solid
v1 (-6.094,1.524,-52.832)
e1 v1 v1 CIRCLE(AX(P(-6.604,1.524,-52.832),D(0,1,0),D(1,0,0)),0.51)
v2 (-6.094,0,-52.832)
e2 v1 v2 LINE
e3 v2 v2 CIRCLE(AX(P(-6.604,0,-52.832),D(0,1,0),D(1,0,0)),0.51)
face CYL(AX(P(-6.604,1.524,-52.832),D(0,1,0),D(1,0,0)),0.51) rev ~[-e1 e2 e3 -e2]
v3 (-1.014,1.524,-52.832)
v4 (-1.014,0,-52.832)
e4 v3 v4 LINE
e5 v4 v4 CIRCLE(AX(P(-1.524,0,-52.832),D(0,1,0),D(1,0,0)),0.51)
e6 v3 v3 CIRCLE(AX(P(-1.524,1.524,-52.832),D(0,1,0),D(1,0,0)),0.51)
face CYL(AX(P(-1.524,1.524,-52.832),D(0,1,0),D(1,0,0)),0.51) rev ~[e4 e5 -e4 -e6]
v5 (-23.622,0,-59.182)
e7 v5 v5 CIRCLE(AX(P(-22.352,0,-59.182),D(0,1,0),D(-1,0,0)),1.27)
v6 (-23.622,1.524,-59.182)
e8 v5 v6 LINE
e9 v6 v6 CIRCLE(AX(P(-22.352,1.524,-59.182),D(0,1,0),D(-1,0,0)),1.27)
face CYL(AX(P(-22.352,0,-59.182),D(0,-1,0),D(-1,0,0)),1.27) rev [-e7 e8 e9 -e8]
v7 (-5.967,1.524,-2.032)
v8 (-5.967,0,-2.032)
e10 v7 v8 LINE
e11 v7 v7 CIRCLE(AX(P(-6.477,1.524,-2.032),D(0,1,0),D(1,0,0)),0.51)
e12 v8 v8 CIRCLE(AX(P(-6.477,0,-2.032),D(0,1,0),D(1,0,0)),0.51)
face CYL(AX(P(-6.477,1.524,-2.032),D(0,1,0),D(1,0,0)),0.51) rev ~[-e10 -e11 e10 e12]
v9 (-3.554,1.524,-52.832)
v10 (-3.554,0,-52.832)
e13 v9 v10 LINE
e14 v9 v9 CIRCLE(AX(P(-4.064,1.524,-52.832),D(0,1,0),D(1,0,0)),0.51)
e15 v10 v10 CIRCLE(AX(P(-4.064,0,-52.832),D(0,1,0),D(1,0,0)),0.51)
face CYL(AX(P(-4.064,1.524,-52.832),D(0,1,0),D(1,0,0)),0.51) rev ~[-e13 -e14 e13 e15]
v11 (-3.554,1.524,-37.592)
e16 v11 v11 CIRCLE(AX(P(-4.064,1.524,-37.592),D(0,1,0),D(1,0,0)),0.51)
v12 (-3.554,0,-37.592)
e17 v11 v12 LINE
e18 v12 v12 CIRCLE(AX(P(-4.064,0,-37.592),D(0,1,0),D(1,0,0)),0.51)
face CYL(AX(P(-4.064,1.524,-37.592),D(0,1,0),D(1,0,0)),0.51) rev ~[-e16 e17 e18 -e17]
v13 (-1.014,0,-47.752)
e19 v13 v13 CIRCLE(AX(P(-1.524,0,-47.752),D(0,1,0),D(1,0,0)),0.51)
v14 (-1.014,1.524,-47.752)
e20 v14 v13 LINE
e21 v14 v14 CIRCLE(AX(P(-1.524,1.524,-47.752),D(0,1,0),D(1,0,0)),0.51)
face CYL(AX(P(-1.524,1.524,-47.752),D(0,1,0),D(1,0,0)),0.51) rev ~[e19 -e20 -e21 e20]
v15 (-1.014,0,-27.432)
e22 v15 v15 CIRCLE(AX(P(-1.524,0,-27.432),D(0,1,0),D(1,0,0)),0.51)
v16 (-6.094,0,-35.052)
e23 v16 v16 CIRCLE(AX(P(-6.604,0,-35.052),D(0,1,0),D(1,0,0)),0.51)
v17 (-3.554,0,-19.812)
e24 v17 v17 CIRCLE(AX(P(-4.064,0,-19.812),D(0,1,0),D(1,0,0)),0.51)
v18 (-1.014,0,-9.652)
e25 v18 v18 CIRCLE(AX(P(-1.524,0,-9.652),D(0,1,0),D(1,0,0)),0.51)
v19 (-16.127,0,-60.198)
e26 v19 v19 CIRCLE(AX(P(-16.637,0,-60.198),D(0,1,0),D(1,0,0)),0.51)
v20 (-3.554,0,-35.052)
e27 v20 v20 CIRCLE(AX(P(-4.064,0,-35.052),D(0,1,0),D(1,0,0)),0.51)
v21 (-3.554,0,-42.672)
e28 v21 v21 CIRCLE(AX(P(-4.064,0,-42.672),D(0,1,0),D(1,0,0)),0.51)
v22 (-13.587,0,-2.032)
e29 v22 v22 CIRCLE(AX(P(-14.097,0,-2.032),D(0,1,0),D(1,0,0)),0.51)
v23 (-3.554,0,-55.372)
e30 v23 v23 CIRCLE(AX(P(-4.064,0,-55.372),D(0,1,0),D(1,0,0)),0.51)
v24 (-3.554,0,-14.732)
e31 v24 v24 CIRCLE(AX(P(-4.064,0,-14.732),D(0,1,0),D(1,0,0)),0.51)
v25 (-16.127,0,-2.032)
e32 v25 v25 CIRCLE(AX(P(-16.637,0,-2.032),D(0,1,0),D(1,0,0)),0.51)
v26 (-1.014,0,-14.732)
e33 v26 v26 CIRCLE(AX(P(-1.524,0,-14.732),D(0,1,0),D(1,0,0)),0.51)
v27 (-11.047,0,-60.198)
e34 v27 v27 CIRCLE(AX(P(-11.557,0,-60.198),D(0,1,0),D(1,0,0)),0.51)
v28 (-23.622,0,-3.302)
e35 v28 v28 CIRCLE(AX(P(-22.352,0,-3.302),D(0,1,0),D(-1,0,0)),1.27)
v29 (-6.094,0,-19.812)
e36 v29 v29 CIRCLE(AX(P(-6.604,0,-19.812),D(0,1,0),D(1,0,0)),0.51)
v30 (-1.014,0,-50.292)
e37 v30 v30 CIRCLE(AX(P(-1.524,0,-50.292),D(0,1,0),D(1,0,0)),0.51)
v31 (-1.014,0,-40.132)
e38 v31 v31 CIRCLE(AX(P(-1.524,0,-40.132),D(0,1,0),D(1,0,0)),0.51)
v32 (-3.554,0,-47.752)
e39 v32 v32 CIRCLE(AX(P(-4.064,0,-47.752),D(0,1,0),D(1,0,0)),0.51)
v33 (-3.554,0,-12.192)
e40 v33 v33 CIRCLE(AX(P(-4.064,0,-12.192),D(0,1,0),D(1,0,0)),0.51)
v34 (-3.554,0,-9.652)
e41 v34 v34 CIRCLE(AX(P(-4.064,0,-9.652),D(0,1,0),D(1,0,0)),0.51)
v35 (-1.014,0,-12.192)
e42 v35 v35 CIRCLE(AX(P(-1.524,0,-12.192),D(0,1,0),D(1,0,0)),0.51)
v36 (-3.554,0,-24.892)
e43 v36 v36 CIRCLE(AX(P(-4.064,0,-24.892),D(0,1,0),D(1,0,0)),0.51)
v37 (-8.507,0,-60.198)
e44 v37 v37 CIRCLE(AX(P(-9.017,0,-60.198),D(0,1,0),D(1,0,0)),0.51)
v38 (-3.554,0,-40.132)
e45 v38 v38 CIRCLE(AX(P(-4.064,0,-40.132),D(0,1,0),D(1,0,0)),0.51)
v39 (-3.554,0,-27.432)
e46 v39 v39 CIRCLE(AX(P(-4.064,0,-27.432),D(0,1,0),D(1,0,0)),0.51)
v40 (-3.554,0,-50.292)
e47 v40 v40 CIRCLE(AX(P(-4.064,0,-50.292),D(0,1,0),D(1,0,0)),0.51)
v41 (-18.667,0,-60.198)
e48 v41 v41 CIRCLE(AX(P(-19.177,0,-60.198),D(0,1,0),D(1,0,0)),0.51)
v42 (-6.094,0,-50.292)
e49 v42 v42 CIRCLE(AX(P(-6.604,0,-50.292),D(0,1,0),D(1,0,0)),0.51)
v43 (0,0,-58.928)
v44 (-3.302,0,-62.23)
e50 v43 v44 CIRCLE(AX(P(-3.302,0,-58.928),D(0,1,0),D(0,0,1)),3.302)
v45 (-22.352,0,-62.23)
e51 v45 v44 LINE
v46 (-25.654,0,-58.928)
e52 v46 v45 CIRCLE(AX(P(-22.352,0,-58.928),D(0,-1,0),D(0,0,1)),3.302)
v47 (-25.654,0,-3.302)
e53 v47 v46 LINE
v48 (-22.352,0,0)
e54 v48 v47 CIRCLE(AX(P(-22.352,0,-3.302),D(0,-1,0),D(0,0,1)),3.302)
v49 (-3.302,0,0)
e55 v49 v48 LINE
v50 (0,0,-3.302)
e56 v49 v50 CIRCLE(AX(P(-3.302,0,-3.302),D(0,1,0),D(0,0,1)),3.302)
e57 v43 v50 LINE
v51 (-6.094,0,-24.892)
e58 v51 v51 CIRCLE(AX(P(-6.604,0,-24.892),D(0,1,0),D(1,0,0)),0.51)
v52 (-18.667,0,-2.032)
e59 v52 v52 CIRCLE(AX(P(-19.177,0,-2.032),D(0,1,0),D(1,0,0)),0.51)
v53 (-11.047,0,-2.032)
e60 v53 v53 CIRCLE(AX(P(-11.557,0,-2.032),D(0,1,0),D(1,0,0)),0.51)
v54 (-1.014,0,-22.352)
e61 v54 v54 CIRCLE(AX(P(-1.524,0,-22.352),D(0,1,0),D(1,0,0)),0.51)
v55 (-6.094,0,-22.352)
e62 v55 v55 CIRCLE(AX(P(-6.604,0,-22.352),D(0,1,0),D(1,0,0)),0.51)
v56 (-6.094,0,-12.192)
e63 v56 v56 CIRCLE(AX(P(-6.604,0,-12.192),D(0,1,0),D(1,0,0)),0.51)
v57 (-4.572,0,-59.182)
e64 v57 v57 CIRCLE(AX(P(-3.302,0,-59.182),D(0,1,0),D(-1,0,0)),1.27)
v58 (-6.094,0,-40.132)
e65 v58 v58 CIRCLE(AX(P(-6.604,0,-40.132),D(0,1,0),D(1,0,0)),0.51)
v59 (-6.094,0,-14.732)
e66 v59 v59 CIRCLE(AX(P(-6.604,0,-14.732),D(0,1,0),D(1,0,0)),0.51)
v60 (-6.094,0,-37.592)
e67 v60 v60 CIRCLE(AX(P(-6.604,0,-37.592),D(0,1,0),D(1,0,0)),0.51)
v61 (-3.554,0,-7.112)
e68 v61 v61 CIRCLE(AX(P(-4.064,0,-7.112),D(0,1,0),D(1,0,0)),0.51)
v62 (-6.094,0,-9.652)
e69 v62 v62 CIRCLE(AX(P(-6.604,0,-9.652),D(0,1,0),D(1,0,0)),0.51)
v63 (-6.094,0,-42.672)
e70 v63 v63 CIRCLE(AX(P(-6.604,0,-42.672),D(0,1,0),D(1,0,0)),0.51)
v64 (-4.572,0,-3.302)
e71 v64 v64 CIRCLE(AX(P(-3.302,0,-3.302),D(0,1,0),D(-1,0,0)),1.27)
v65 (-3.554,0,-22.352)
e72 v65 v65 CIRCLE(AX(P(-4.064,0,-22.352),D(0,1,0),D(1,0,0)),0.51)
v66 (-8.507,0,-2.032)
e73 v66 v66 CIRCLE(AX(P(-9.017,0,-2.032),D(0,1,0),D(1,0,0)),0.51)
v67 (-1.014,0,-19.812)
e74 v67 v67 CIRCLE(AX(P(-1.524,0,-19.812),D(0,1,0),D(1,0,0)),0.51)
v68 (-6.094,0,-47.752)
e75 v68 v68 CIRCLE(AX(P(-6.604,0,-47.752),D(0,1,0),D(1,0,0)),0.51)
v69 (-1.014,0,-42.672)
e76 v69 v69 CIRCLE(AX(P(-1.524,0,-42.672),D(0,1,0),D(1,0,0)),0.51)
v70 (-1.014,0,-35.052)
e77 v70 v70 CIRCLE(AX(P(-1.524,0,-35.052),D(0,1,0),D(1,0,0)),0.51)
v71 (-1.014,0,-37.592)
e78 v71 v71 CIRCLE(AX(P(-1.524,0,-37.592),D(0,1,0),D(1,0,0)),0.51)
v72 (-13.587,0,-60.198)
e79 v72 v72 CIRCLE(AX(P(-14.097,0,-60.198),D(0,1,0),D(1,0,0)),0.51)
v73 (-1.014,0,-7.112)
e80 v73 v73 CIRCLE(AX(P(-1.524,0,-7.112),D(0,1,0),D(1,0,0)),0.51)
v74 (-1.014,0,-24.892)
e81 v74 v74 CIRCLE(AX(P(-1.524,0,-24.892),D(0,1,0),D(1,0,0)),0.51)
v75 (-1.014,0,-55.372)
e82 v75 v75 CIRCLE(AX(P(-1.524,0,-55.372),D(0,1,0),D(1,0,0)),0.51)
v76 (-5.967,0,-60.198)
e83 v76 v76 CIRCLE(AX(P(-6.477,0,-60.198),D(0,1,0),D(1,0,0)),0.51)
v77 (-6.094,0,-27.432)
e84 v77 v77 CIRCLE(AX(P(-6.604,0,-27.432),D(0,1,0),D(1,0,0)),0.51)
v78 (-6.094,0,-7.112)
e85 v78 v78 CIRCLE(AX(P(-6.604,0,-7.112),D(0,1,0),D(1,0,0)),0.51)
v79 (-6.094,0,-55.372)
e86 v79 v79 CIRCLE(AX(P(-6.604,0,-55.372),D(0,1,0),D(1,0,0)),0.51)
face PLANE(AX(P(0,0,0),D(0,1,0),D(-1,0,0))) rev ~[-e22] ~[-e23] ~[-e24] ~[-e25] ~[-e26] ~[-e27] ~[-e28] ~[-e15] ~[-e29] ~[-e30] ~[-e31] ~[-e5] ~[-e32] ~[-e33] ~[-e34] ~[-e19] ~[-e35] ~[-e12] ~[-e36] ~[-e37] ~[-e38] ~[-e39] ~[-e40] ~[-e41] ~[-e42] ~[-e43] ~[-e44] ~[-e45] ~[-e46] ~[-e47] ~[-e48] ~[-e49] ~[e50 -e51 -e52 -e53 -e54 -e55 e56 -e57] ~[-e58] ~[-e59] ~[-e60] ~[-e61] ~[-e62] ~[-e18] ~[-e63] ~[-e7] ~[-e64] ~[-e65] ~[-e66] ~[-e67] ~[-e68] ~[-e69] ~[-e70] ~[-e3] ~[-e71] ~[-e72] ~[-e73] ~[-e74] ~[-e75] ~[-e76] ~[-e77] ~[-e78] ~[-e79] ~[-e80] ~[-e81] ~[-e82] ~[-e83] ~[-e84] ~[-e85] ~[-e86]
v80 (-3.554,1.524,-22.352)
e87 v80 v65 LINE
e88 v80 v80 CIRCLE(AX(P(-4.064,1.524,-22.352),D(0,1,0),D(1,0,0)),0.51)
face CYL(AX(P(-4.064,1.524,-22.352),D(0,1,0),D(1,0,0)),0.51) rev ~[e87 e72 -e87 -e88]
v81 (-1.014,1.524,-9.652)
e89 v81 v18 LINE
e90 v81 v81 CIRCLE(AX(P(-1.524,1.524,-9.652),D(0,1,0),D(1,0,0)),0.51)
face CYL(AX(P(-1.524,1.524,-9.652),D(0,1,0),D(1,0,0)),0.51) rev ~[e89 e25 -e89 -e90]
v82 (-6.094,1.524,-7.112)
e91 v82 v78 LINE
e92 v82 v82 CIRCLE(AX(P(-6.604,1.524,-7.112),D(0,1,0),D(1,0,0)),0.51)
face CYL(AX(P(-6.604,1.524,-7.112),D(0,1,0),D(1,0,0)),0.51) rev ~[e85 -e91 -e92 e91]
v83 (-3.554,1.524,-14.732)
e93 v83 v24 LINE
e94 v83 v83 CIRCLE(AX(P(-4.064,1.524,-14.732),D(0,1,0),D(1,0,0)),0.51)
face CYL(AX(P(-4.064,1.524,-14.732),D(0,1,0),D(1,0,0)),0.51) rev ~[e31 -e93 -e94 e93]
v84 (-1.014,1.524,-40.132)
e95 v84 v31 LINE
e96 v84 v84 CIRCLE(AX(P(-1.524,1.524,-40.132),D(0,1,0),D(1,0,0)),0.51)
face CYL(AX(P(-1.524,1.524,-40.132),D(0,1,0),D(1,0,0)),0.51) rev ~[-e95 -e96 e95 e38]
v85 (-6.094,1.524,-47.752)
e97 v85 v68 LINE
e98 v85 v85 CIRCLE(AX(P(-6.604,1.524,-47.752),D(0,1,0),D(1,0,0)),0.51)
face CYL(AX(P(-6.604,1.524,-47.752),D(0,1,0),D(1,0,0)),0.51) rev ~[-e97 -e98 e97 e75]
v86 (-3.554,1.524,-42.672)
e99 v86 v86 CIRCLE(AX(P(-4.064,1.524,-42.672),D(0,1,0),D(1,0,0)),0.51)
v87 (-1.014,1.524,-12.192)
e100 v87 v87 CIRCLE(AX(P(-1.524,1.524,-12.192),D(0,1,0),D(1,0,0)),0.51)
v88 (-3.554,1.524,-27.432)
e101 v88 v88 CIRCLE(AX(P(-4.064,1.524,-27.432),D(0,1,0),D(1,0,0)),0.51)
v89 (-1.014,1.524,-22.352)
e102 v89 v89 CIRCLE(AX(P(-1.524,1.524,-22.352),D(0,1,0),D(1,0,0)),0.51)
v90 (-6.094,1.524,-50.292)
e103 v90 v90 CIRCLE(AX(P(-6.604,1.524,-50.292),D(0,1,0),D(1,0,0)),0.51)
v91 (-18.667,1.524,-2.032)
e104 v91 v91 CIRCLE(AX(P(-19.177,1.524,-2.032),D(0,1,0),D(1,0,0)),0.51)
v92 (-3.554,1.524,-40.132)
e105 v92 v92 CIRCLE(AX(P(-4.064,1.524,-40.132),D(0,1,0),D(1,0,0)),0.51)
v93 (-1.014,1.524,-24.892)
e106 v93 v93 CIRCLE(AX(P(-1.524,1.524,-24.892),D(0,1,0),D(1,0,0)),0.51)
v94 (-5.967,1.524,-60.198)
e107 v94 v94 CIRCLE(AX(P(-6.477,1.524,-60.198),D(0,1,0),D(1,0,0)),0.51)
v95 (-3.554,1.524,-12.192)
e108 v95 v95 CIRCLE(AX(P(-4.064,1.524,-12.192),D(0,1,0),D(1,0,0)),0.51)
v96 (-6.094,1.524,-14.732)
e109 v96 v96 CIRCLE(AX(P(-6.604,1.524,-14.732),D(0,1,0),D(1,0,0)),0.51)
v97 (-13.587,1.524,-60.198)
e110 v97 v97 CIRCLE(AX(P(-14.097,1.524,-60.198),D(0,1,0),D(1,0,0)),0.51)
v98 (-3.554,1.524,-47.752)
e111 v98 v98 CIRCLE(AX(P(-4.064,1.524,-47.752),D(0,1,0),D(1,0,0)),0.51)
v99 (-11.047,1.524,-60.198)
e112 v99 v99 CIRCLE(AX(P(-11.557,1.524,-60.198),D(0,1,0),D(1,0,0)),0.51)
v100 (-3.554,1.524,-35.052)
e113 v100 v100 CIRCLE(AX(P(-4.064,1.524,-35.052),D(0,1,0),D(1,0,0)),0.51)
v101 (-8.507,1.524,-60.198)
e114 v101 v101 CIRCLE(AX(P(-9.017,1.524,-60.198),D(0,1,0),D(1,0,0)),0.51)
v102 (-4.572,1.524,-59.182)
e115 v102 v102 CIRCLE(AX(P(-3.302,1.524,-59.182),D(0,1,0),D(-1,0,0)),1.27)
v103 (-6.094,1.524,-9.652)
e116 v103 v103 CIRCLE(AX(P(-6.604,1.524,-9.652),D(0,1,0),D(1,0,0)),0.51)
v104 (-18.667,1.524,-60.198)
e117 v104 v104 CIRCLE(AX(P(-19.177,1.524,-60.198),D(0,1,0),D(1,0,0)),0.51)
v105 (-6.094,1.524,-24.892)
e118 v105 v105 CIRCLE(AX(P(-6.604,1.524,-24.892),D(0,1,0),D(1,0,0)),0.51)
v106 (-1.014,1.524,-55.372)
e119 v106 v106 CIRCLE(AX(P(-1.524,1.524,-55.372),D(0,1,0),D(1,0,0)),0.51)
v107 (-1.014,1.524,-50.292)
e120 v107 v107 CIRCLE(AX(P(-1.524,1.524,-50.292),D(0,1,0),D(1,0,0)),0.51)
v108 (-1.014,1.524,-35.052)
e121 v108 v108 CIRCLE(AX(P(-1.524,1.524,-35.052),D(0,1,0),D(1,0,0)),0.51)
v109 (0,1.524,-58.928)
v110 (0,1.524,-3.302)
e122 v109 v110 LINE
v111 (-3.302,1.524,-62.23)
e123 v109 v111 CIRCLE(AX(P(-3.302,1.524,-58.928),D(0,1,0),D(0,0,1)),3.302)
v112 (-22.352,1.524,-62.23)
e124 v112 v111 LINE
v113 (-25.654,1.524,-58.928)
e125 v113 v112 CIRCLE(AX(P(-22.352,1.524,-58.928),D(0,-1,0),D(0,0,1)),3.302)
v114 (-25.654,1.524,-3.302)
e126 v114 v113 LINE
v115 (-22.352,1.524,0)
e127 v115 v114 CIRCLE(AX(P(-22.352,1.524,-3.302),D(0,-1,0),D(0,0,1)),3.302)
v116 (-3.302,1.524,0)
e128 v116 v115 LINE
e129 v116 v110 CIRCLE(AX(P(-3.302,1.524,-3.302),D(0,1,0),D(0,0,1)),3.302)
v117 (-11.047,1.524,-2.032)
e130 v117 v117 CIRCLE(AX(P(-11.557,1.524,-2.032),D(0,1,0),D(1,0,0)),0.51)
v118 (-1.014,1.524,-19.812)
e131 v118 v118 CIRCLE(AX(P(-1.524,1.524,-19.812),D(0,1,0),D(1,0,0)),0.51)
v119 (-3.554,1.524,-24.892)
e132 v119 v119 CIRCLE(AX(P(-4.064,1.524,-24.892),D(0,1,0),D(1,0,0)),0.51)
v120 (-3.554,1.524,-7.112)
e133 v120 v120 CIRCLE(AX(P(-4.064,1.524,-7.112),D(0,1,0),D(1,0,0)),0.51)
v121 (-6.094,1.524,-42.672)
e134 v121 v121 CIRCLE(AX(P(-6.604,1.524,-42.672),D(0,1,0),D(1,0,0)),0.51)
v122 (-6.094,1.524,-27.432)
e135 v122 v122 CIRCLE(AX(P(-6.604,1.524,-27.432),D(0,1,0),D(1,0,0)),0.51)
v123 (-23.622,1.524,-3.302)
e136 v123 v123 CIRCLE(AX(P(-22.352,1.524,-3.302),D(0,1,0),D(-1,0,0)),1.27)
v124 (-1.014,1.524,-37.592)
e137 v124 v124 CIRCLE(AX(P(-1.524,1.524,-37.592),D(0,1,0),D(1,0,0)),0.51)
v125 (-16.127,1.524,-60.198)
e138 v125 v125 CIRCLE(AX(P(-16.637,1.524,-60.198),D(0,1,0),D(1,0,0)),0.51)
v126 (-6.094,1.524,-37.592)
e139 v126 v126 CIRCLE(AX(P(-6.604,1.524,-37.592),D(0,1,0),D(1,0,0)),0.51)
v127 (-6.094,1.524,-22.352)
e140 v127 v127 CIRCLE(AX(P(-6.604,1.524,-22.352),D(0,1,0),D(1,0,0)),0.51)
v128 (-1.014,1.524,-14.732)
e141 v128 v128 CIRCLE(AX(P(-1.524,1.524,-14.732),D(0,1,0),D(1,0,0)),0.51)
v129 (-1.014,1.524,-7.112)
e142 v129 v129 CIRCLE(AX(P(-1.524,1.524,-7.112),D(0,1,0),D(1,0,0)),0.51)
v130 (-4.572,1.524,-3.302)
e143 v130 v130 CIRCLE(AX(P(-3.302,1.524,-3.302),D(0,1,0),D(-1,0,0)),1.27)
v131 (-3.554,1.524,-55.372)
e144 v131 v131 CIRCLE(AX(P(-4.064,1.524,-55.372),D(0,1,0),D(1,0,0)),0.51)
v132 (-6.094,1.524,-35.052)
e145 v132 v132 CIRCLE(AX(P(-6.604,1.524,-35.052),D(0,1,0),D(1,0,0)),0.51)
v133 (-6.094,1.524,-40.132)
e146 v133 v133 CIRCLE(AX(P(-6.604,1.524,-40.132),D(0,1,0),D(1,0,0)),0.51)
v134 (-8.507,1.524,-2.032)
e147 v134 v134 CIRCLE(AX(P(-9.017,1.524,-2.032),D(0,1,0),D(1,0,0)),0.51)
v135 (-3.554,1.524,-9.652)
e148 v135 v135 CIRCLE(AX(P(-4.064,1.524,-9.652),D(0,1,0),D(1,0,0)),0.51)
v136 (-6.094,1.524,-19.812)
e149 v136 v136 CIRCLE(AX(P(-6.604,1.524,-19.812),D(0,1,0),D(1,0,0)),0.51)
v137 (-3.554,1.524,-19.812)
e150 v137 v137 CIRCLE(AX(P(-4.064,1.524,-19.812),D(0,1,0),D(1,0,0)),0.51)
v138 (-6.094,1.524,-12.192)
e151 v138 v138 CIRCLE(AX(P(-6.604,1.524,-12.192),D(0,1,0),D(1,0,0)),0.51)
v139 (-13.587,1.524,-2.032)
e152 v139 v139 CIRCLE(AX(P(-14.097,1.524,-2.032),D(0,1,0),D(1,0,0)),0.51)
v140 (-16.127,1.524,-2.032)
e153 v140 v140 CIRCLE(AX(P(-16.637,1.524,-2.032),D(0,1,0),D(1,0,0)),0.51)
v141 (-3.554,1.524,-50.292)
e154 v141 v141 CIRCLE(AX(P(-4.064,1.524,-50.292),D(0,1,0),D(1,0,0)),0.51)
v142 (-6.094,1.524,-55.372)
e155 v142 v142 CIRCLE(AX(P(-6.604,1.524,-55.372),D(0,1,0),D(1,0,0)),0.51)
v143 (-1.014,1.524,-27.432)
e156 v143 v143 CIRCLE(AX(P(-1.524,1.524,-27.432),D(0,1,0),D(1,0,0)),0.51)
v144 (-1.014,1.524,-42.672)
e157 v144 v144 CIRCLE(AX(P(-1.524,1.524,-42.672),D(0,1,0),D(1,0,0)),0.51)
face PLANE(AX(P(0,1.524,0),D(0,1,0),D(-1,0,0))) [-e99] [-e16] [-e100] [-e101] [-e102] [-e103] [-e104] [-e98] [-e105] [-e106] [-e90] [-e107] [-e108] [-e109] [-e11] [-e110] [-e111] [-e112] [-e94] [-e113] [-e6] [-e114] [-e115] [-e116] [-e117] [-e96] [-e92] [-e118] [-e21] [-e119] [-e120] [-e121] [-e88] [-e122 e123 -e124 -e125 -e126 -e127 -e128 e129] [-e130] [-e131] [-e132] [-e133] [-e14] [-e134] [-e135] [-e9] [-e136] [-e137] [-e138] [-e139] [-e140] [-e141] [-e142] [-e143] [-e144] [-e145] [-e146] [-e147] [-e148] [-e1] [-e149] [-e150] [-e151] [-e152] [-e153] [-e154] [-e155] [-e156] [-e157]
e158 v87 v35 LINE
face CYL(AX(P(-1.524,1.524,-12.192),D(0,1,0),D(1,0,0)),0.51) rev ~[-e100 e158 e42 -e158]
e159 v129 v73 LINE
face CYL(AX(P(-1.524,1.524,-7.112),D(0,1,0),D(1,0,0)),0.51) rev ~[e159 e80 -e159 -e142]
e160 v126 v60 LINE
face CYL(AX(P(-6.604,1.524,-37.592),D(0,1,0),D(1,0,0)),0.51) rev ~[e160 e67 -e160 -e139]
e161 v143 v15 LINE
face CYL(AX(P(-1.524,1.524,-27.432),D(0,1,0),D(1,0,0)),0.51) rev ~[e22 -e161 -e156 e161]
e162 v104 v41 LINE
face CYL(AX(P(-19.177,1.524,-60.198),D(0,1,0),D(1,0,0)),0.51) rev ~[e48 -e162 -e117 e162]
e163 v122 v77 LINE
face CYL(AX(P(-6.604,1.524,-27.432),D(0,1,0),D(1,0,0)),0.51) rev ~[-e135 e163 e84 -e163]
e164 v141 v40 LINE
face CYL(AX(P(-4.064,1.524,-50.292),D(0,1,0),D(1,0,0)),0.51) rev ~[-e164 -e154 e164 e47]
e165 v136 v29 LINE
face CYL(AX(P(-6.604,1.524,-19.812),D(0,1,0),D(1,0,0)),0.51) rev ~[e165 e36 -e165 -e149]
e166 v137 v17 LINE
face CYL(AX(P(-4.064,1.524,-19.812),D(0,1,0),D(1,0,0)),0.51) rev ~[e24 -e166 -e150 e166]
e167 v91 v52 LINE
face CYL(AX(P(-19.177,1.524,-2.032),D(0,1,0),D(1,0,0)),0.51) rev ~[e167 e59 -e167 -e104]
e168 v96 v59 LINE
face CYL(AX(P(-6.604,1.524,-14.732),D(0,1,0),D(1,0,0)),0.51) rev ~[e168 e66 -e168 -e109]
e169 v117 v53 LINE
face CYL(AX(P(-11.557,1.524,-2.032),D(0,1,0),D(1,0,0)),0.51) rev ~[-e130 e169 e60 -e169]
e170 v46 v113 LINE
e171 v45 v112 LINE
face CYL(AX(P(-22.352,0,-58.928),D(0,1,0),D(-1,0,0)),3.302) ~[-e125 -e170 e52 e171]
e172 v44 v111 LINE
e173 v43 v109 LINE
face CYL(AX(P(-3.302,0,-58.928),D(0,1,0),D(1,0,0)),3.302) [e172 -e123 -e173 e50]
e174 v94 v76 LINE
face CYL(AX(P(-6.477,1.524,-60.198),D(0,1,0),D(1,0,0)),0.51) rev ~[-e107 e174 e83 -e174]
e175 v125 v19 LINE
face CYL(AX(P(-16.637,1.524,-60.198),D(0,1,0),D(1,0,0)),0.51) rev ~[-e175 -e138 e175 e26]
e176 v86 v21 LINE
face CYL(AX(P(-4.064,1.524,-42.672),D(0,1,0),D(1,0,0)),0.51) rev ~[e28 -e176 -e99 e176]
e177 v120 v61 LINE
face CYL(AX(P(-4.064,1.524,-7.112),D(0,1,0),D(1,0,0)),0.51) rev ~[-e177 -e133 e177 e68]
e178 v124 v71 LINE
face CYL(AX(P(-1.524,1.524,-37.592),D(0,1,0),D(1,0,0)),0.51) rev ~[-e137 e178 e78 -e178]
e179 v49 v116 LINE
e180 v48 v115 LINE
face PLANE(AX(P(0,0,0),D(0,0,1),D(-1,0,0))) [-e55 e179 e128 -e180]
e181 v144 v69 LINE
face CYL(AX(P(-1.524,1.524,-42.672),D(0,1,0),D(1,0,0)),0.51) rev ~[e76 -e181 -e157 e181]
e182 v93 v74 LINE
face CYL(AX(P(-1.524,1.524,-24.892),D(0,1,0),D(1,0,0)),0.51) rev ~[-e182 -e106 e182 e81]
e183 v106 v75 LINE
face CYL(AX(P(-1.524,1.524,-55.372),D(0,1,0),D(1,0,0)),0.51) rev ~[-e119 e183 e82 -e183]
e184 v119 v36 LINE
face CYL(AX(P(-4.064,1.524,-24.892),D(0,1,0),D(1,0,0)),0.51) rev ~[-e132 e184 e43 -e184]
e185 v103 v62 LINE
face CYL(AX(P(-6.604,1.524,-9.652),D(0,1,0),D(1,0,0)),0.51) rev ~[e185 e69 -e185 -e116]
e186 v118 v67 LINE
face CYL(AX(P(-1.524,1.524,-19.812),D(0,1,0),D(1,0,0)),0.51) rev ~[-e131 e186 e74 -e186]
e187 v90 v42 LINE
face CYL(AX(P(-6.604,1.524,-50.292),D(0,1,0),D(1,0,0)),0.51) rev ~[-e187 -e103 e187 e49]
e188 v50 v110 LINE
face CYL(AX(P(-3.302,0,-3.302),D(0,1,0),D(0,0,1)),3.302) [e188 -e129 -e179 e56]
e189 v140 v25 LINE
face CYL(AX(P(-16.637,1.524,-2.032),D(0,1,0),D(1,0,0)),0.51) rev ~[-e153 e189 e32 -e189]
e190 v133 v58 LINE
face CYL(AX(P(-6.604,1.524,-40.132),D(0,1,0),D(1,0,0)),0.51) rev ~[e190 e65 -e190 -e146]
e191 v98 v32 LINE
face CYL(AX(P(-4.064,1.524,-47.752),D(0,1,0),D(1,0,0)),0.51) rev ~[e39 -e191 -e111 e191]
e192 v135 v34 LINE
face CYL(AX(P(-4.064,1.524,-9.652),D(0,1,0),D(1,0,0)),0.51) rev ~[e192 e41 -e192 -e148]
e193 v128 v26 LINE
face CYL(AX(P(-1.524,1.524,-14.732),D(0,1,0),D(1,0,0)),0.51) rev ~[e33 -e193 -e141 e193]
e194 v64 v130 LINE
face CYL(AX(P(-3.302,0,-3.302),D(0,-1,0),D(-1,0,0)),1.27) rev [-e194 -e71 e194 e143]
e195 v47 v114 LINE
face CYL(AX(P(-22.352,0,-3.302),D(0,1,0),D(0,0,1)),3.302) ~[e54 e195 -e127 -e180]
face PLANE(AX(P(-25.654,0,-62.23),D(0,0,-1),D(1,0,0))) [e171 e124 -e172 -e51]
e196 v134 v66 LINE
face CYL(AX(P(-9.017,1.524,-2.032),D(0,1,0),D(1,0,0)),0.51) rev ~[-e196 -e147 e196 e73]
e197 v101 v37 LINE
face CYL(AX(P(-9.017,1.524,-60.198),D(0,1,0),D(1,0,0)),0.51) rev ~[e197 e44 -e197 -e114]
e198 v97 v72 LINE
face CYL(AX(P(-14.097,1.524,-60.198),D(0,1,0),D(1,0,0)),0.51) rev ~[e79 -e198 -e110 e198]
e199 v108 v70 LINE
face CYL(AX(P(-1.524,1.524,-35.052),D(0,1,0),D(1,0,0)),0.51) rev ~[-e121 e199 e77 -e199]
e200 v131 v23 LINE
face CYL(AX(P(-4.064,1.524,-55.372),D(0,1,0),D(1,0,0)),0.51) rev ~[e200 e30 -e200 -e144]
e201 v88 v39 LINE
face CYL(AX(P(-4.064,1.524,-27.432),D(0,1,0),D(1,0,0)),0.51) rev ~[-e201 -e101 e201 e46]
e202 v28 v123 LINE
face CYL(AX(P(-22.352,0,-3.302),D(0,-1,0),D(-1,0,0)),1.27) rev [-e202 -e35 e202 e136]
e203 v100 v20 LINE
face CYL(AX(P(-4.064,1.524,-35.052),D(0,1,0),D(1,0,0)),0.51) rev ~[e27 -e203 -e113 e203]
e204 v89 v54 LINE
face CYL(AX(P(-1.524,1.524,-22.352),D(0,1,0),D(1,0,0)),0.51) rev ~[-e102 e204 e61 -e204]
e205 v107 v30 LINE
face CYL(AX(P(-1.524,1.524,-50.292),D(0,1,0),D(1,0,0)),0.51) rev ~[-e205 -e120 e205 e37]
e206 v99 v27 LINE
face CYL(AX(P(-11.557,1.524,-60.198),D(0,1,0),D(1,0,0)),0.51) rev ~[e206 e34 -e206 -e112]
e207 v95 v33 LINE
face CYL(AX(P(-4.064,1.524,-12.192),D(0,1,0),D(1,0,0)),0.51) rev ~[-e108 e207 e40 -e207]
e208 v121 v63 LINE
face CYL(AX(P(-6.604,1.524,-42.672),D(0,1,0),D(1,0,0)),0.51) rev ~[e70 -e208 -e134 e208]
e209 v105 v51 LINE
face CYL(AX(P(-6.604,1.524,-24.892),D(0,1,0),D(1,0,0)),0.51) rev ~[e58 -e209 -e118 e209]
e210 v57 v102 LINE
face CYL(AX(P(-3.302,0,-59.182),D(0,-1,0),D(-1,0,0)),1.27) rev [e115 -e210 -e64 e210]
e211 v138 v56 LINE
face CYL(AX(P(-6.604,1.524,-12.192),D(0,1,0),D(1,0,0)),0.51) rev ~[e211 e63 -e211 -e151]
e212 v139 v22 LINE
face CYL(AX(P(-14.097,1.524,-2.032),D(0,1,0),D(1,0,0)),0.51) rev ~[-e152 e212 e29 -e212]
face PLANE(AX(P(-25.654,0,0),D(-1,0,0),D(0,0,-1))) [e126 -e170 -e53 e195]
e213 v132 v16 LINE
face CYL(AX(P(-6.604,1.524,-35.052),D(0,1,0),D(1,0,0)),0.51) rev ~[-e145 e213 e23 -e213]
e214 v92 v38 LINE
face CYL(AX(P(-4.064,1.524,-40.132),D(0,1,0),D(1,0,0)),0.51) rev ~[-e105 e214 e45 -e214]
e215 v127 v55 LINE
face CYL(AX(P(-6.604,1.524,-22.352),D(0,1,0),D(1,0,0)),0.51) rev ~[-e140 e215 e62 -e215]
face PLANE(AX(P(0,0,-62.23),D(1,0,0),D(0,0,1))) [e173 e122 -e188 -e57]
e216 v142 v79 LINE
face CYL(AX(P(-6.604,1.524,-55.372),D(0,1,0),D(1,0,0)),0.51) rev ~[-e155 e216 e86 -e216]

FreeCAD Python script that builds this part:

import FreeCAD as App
import Part
import Sketcher

V = App.Vector
Q = App.Units.Quantity


def edges_at(feature, points):
    """Names of the edges that pass closest to the given points."""
    edges = feature.Shape.Edges
    near = lambda p: min(range(len(edges)), key=lambda i: edges[i].distToShape(Part.Vertex(*p))[0])
    return sorted({f"Edge{near(p) + 1}" for p in points})


def add_polygon(sketch, points):
    """Adds a closed chain of lines whose ends are joined by coincident constraints."""
    first, n = sketch.GeometryCount, len(points)
    for a, b in zip(points, points[1:] + points[:1]):
        sketch.addGeometry(Part.LineSegment(App.Vector(*a, 0), App.Vector(*b, 0)), False)
    for i in range(n):
        sketch.addConstraint(Sketcher.Constraint("Coincident", first + i, 2, first + (i + 1) % n, 1))

doc = App.newDocument("Part")
params = doc.addObject("Spreadsheet::Sheet", "Params")
for row, (alias, value) in enumerate([
    ("sketch1_diameter", "0.1 in"),
    ("sketch1_width", "1.01 in"),
    ("sketch1_height", "2.45 in"),
    ("pad1_length", "0.06 in"),
    ("fillet_radius", "0.13 in"),
], start=1):
    params.set(f"A{row}", alias)
    params.set(f"B{row}", "=" + value)
    params.setAlias(f"B{row}", alias)

body = doc.addObject("PartDesign::Body", "Body")

# Sketch on XZ plane
sketch1 = body.newObject("Sketcher::SketchObject", "Sketch")
sketch1.AttachmentSupport = (doc.getObject("XZ_Plane"), [""])
sketch1.MapMode = "FlatFace"
add_polygon(sketch1, [(-25.7, 0), (0, 0), (0, -62.2), (-25.7, -62.2)])  # lines 0-3
sketch1.addGeometry(Part.Circle(V(-3.3, -59.2, 0), V(0, 0, 1), 1.3), False)  # 4
sketch1.addGeometry(Part.Circle(V(-22.4, -59.2, 0), V(0, 0, 1), 1.3), False)  # 5
sketch1.addGeometry(Part.Circle(V(-3.3, -3.3, 0), V(0, 0, 1), 1.3), False)  # 6
sketch1.addGeometry(Part.Circle(V(-22.4, -3.3, 0), V(0, 0, 1), 1.3), False)  # 7
sketch1.addConstraint(Sketcher.Constraint("Horizontal", 0))
sketch1.addConstraint(Sketcher.Constraint("Vertical", 1))
sketch1.addConstraint(Sketcher.Constraint("Horizontal", 2))
sketch1.addConstraint(Sketcher.Constraint("Vertical", 3))
sketch1.addConstraint(Sketcher.Constraint("Coincident", 0, 2, -1, 1))
sketch1.addConstraint(Sketcher.Constraint("Equal", 4, 5))
sketch1.addConstraint(Sketcher.Constraint("Equal", 5, 6))
sketch1.addConstraint(Sketcher.Constraint("Equal", 6, 7))
sketch1.addConstraint(Sketcher.Constraint("Horizontal", 4, 3, 5, 3))
sketch1.addConstraint(Sketcher.Constraint("Horizontal", 6, 3, 7, 3))
sketch1.addConstraint(Sketcher.Constraint("Vertical", 4, 3, 6, 3))
sketch1.addConstraint(Sketcher.Constraint("Vertical", 5, 3, 7, 3))
sketch1.addConstraint(Sketcher.Constraint("Diameter", 4, Q("0.1 in")))
sketch1.addConstraint(Sketcher.Constraint("DistanceX", 0, 1, 0, 2, Q("1.01 in")))
sketch1.addConstraint(Sketcher.Constraint("DistanceY", 1, 2, 1, 1, Q("2.45 in")))
sketch1.addConstraint(Sketcher.Constraint("DistanceY", 4, 3, 6, 3, Q("2.2 in")))
sketch1.addConstraint(Sketcher.Constraint("DistanceX", 4, 3, -1, 1, Q("0.13 in")))
sketch1.addConstraint(Sketcher.Constraint("DistanceY", 6, 3, -1, 1, Q("0.13 in")))
sketch1.addConstraint(Sketcher.Constraint("DistanceX", 5, 3, 4, 3, Q("0.75 in")))
sketch1.setExpression("Constraints[16]", "Params.sketch1_diameter")
sketch1.setExpression("Constraints[17]", "Params.sketch1_width")
sketch1.setExpression("Constraints[18]", "Params.sketch1_height")
pad1 = body.newObject("PartDesign::Pad", "Pad")
pad1.Profile = sketch1
pad1.setExpression("Length", "Params.pad1_length")
pad1.Reversed = True

# Sketch on XZ plane
sketch2 = body.newObject("Sketcher::SketchObject", "Sketch001")
sketch2.AttachmentSupport = (doc.getObject("XZ_Plane"), [""])
sketch2.MapMode = "FlatFace"
sketch2.AttachmentOffset = App.Placement(V(0, 0, -0.06 * 25.4), App.Rotation())
sketch2.addGeometry(Part.Circle(V(-19.2, -2, 0), V(0, 0, 1), 0.5), False)
sketch2.addGeometry(Part.Circle(V(-16.6, -2, 0), V(0, 0, 1), 0.5), False)
sketch2.addGeometry(Part.Circle(V(-14.1, -2, 0), V(0, 0, 1), 0.5), False)
sketch2.addGeometry(Part.Circle(V(-11.6, -2, 0), V(0, 0, 1), 0.5), False)
sketch2.addGeometry(Part.Circle(V(-9, -2, 0), V(0, 0, 1), 0.5), False)
sketch2.addGeometry(Part.Circle(V(-6.5, -2, 0), V(0, 0, 1), 0.5), False)
sketch2.addGeometry(Part.Circle(V(-6.6, -7.1, 0), V(0, 0, 1), 0.5), False)
sketch2.addGeometry(Part.Circle(V(-6.6, -9.7, 0), V(0, 0, 1), 0.5), False)
sketch2.addGeometry(Part.Circle(V(-6.6, -12.2, 0), V(0, 0, 1), 0.5), False)
sketch2.addGeometry(Part.Circle(V(-6.6, -14.7, 0), V(0, 0, 1), 0.5), False)
sketch2.addGeometry(Part.Circle(V(-4.1, -7.1, 0), V(0, 0, 1), 0.5), False)
sketch2.addGeometry(Part.Circle(V(-4.1, -9.7, 0), V(0, 0, 1), 0.5), False)
sketch2.addGeometry(Part.Circle(V(-4.1, -12.2, 0), V(0, 0, 1), 0.5), False)
sketch2.addGeometry(Part.Circle(V(-4.1, -14.7, 0), V(0, 0, 1), 0.5), False)
sketch2.addGeometry(Part.Circle(V(-1.5, -7.1, 0), V(0, 0, 1), 0.5), False)
sketch2.addGeometry(Part.Circle(V(-1.5, -9.7, 0), V(0, 0, 1), 0.5), False)
sketch2.addGeometry(Part.Circle(V(-1.5, -12.2, 0), V(0, 0, 1), 0.5), False)
sketch2.addGeometry(Part.Circle(V(-1.5, -14.7, 0), V(0, 0, 1), 0.5), False)
sketch2.addGeometry(Part.Circle(V(-4.1, -19.8, 0), V(0, 0, 1), 0.5), False)
sketch2.addGeometry(Part.Circle(V(-1.5, -19.8, 0), V(0, 0, 1), 0.5), False)
sketch2.addGeometry(Part.Circle(V(-1.5, -22.4, 0), V(0, 0, 1), 0.5), False)
sketch2.addGeometry(Part.Circle(V(-6.6, -24.9, 0), V(0, 0, 1), 0.5), False)
sketch2.addGeometry(Part.Circle(V(-4.1, -24.9, 0), V(0, 0, 1), 0.5), False)
sketch2.addGeometry(Part.Circle(V(-1.5, -24.9, 0), V(0, 0, 1), 0.5), False)
sketch2.addGeometry(Part.Circle(V(-6.6, -27.4, 0), V(0, 0, 1), 0.5), False)
sketch2.addGeometry(Part.Circle(V(-4.1, -27.4, 0), V(0, 0, 1), 0.5), False)
sketch2.addGeometry(Part.Circle(V(-1.5, -27.4, 0), V(0, 0, 1), 0.5), False)
sketch2.addGeometry(Part.Circle(V(-6.6, -22.4, 0), V(0, 0, 1), 0.5), False)
sketch2.addGeometry(Part.Circle(V(-4.1, -22.4, 0), V(0, 0, 1), 0.5), False)
sketch2.addGeometry(Part.Circle(V(-6.6, -19.8, 0), V(0, 0, 1), 0.5), False)
sketch2.addGeometry(Part.Circle(V(-1.5, -37.6, 0), V(0, 0, 1), 0.5), False)
sketch2.addGeometry(Part.Circle(V(-4.1, -37.6, 0), V(0, 0, 1), 0.5), False)
sketch2.addGeometry(Part.Circle(V(-6.6, -37.6, 0), V(0, 0, 1), 0.5), False)
sketch2.addGeometry(Part.Circle(V(-1.5, -40.1, 0), V(0, 0, 1), 0.5), False)
sketch2.addGeometry(Part.Circle(V(-4.1, -40.1, 0), V(0, 0, 1), 0.5), False)
sketch2.addGeometry(Part.Circle(V(-6.6, -40.1, 0), V(0, 0, 1), 0.5), False)
sketch2.addGeometry(Part.Circle(V(-1.5, -42.7, 0), V(0, 0, 1), 0.5), False)
sketch2.addGeometry(Part.Circle(V(-4.1, -42.7, 0), V(0, 0, 1), 0.5), False)
sketch2.addGeometry(Part.Circle(V(-6.6, -42.7, 0), V(0, 0, 1), 0.5), False)
sketch2.addGeometry(Part.Circle(V(-4.1, -35.1, 0), V(0, 0, 1), 0.5), False)
sketch2.addGeometry(Part.Circle(V(-1.5, -35.1, 0), V(0, 0, 1), 0.5), False)
sketch2.addGeometry(Part.Circle(V(-6.6, -35.1, 0), V(0, 0, 1), 0.5), False)
sketch2.addGeometry(Part.Circle(V(-4.1, -47.8, 0), V(0, 0, 1), 0.5), False)
sketch2.addGeometry(Part.Circle(V(-1.5, -47.8, 0), V(0, 0, 1), 0.5), False)
sketch2.addGeometry(Part.Circle(V(-6.6, -47.8, 0), V(0, 0, 1), 0.5), False)
sketch2.addGeometry(Part.Circle(V(-4.1, -50.3, 0), V(0, 0, 1), 0.5), False)
sketch2.addGeometry(Part.Circle(V(-6.6, -50.3, 0), V(0, 0, 1), 0.5), False)
sketch2.addGeometry(Part.Circle(V(-1.5, -50.3, 0), V(0, 0, 1), 0.5), False)
sketch2.addGeometry(Part.Circle(V(-4.1, -52.8, 0), V(0, 0, 1), 0.5), False)
sketch2.addGeometry(Part.Circle(V(-6.6, -52.8, 0), V(0, 0, 1), 0.5), False)
sketch2.addGeometry(Part.Circle(V(-1.5, -52.8, 0), V(0, 0, 1), 0.5), False)
sketch2.addGeometry(Part.Circle(V(-6.6, -55.4, 0), V(0, 0, 1), 0.5), False)
sketch2.addGeometry(Part.Circle(V(-4.1, -55.4, 0), V(0, 0, 1), 0.5), False)
sketch2.addGeometry(Part.Circle(V(-1.5, -55.4, 0), V(0, 0, 1), 0.5), False)
sketch2.addGeometry(Part.Circle(V(-6.5, -60.2, 0), V(0, 0, 1), 0.5), False)
sketch2.addGeometry(Part.Circle(V(-9, -60.2, 0), V(0, 0, 1), 0.5), False)
sketch2.addGeometry(Part.Circle(V(-11.6, -60.2, 0), V(0, 0, 1), 0.5), False)
sketch2.addGeometry(Part.Circle(V(-19.2, -60.2, 0), V(0, 0, 1), 0.5), False)
sketch2.addGeometry(Part.Circle(V(-16.6, -60.2, 0), V(0, 0, 1), 0.5), False)
sketch2.addGeometry(Part.Circle(V(-14.1, -60.2, 0), V(0, 0, 1), 0.5), False)
sketch2.addConstraint(Sketcher.Constraint("Equal", 0, 1))
sketch2.addConstraint(Sketcher.Constraint("Equal", 1, 2))
sketch2.addConstraint(Sketcher.Constraint("Equal", 2, 3))
sketch2.addConstraint(Sketcher.Constraint("Equal", 3, 4))
sketch2.addConstraint(Sketcher.Constraint("Equal", 4, 5))
sketch2.addConstraint(Sketcher.Constraint("Equal", 5, 6))
sketch2.addConstraint(Sketcher.Constraint("Equal", 6, 7))
sketch2.addConstraint(Sketcher.Constraint("Equal", 7, 8))
sketch2.addConstraint(Sketcher.Constraint("Equal", 8, 9))
sketch2.addConstraint(Sketcher.Constraint("Equal", 9, 10))
sketch2.addConstraint(Sketcher.Constraint("Equal", 10, 11))
sketch2.addConstraint(Sketcher.Constraint("Equal", 11, 12))
sketch2.addConstraint(Sketcher.Constraint("Equal", 12, 13))
sketch2.addConstraint(Sketcher.Constraint("Equal", 13, 14))
sketch2.addConstraint(Sketcher.Constraint("Equal", 14, 15))
sketch2.addConstraint(Sketcher.Constraint("Equal", 15, 16))
sketch2.addConstraint(Sketcher.Constraint("Equal", 16, 17))
sketch2.addConstraint(Sketcher.Constraint("Equal", 17, 18))
sketch2.addConstraint(Sketcher.Constraint("Equal", 18, 19))
sketch2.addConstraint(Sketcher.Constraint("Equal", 19, 20))
sketch2.addConstraint(Sketcher.Constraint("Equal", 20, 21))
sketch2.addConstraint(Sketcher.Constraint("Equal", 21, 22))
sketch2.addConstraint(Sketcher.Constraint("Equal", 22, 23))
sketch2.addConstraint(Sketcher.Constraint("Equal", 23, 24))
sketch2.addConstraint(Sketcher.Constraint("Equal", 24, 25))
sketch2.addConstraint(Sketcher.Constraint("Equal", 25, 26))
sketch2.addConstraint(Sketcher.Constraint("Equal", 26, 27))
sketch2.addConstraint(Sketcher.Constraint("Equal", 27, 28))
sketch2.addConstraint(Sketcher.Constraint("Equal", 28, 29))
sketch2.addConstraint(Sketcher.Constraint("Equal", 29, 30))
sketch2.addConstraint(Sketcher.Constraint("Equal", 30, 31))
sketch2.addConstraint(Sketcher.Constraint("Equal", 31, 32))
sketch2.addConstraint(Sketcher.Constraint("Equal", 32, 33))
sketch2.addConstraint(Sketcher.Constraint("Equal", 33, 34))
sketch2.addConstraint(Sketcher.Constraint("Equal", 34, 35))
sketch2.addConstraint(Sketcher.Constraint("Equal", 35, 36))
sketch2.addConstraint(Sketcher.Constraint("Equal", 36, 37))
sketch2.addConstraint(Sketcher.Constraint("Equal", 37, 38))
sketch2.addConstraint(Sketcher.Constraint("Equal", 38, 39))
sketch2.addConstraint(Sketcher.Constraint("Equal", 39, 40))
sketch2.addConstraint(Sketcher.Constraint("Equal", 40, 41))
sketch2.addConstraint(Sketcher.Constraint("Equal", 41, 42))
sketch2.addConstraint(Sketcher.Constraint("Equal", 42, 43))
sketch2.addConstraint(Sketcher.Constraint("Equal", 43, 44))
sketch2.addConstraint(Sketcher.Constraint("Equal", 44, 45))
sketch2.addConstraint(Sketcher.Constraint("Equal", 45, 46))
sketch2.addConstraint(Sketcher.Constraint("Equal", 46, 47))
sketch2.addConstraint(Sketcher.Constraint("Equal", 47, 48))
sketch2.addConstraint(Sketcher.Constraint("Equal", 48, 49))
sketch2.addConstraint(Sketcher.Constraint("Equal", 49, 50))
sketch2.addConstraint(Sketcher.Constraint("Equal", 50, 51))
sketch2.addConstraint(Sketcher.Constraint("Equal", 51, 52))
sketch2.addConstraint(Sketcher.Constraint("Equal", 52, 53))
sketch2.addConstraint(Sketcher.Constraint("Equal", 53, 54))
sketch2.addConstraint(Sketcher.Constraint("Equal", 54, 55))
sketch2.addConstraint(Sketcher.Constraint("Equal", 55, 56))
sketch2.addConstraint(Sketcher.Constraint("Equal", 56, 57))
sketch2.addConstraint(Sketcher.Constraint("Equal", 57, 58))
sketch2.addConstraint(Sketcher.Constraint("Equal", 58, 59))
sketch2.addConstraint(Sketcher.Constraint("Horizontal", 0, 3, 1, 3))
sketch2.addConstraint(Sketcher.Constraint("Horizontal", 1, 3, 2, 3))
sketch2.addConstraint(Sketcher.Constraint("Horizontal", 2, 3, 3, 3))
sketch2.addConstraint(Sketcher.Constraint("Horizontal", 3, 3, 4, 3))
sketch2.addConstraint(Sketcher.Constraint("Horizontal", 4, 3, 5, 3))
sketch2.addConstraint(Sketcher.Constraint("Horizontal", 6, 3, 10, 3))
sketch2.addConstraint(Sketcher.Constraint("Horizontal", 7, 3, 11, 3))
sketch2.addConstraint(Sketcher.Constraint("Horizontal", 8, 3, 12, 3))
sketch2.addConstraint(Sketcher.Constraint("Horizontal", 9, 3, 13, 3))
sketch2.addConstraint(Sketcher.Constraint("Horizontal", 10, 3, 14, 3))
sketch2.addConstraint(Sketcher.Constraint("Horizontal", 11, 3, 15, 3))
sketch2.addConstraint(Sketcher.Constraint("Horizontal", 12, 3, 16, 3))
sketch2.addConstraint(Sketcher.Constraint("Horizontal", 13, 3, 17, 3))
sketch2.addConstraint(Sketcher.Constraint("Horizontal", 18, 3, 19, 3))
sketch2.addConstraint(Sketcher.Constraint("Horizontal", 21, 3, 22, 3))
sketch2.addConstraint(Sketcher.Constraint("Horizontal", 22, 3, 23, 3))
sketch2.addConstraint(Sketcher.Constraint("Horizontal", 24, 3, 25, 3))
sketch2.addConstraint(Sketcher.Constraint("Horizontal", 25, 3, 26, 3))
sketch2.addConstraint(Sketcher.Constraint("Horizontal", 20, 3, 27, 3))
sketch2.addConstraint(Sketcher.Constraint("Horizontal", 27, 3, 28, 3))
sketch2.addConstraint(Sketcher.Constraint("Horizontal", 19, 3, 29, 3))
sketch2.addConstraint(Sketcher.Constraint("Horizontal", 30, 3, 31, 3))
sketch2.addConstraint(Sketcher.Constraint("Horizontal", 31, 3, 32, 3))
sketch2.addConstraint(Sketcher.Constraint("Horizontal", 33, 3, 34, 3))
sketch2.addConstraint(Sketcher.Constraint("Horizontal", 34, 3, 35, 3))
sketch2.addConstraint(Sketcher.Constraint("Horizontal", 36, 3, 37, 3))
sketch2.addConstraint(Sketcher.Constraint("Horizontal", 37, 3, 38, 3))
sketch2.addConstraint(Sketcher.Constraint("Horizontal", 39, 3, 40, 3))
sketch2.addConstraint(Sketcher.Constraint("Horizontal", 40, 3, 41, 3))
sketch2.addConstraint(Sketcher.Constraint("Horizontal", 42, 3, 43, 3))
sketch2.addConstraint(Sketcher.Constraint("Horizontal", 43, 3, 44, 3))
sketch2.addConstraint(Sketcher.Constraint("Horizontal", 45, 3, 46, 3))
sketch2.addConstraint(Sketcher.Constraint("Horizontal", 46, 3, 47, 3))
sketch2.addConstraint(Sketcher.Constraint("Horizontal", 48, 3, 49, 3))
sketch2.addConstraint(Sketcher.Constraint("Horizontal", 49, 3, 50, 3))
sketch2.addConstraint(Sketcher.Constraint("Horizontal", 51, 3, 52, 3))
sketch2.addConstraint(Sketcher.Constraint("Horizontal", 52, 3, 53, 3))
sketch2.addConstraint(Sketcher.Constraint("Horizontal", 54, 3, 55, 3))
sketch2.addConstraint(Sketcher.Constraint("Horizontal", 55, 3, 56, 3))
sketch2.addConstraint(Sketcher.Constraint("Horizontal", 56, 3, 57, 3))
sketch2.addConstraint(Sketcher.Constraint("Horizontal", 57, 3, 58, 3))
sketch2.addConstraint(Sketcher.Constraint("Horizontal", 58, 3, 59, 3))
sketch2.addConstraint(Sketcher.Constraint("Vertical", 6, 3, 7, 3))
sketch2.addConstraint(Sketcher.Constraint("Vertical", 7, 3, 8, 3))
sketch2.addConstraint(Sketcher.Constraint("Vertical", 8, 3, 9, 3))
sketch2.addConstraint(Sketcher.Constraint("Vertical", 10, 3, 11, 3))
sketch2.addConstraint(Sketcher.Constraint("Vertical", 11, 3, 12, 3))
sketch2.addConstraint(Sketcher.Constraint("Vertical", 12, 3, 13, 3))
sketch2.addConstraint(Sketcher.Constraint("Vertical", 14, 3, 15, 3))
sketch2.addConstraint(Sketcher.Constraint("Vertical", 15, 3, 16, 3))
sketch2.addConstraint(Sketcher.Constraint("Vertical", 16, 3, 17, 3))
sketch2.addConstraint(Sketcher.Constraint("Vertical", 13, 3, 18, 3))
sketch2.addConstraint(Sketcher.Constraint("Vertical", 17, 3, 19, 3))
sketch2.addConstraint(Sketcher.Constraint("Vertical", 19, 3, 20, 3))
sketch2.addConstraint(Sketcher.Constraint("Vertical", 9, 3, 21, 3))
sketch2.addConstraint(Sketcher.Constraint("Vertical", 18, 3, 22, 3))
sketch2.addConstraint(Sketcher.Constraint("Vertical", 20, 3, 23, 3))
sketch2.addConstraint(Sketcher.Constraint("Vertical", 21, 3, 24, 3))
sketch2.addConstraint(Sketcher.Constraint("Vertical", 22, 3, 25, 3))
sketch2.addConstraint(Sketcher.Constraint("Vertical", 23, 3, 26, 3))
sketch2.addConstraint(Sketcher.Constraint("Vertical", 24, 3, 27, 3))
sketch2.addConstraint(Sketcher.Constraint("Vertical", 25, 3, 28, 3))
sketch2.addConstraint(Sketcher.Constraint("Vertical", 27, 3, 29, 3))
sketch2.addConstraint(Sketcher.Constraint("Vertical", 26, 3, 30, 3))
sketch2.addConstraint(Sketcher.Constraint("Vertical", 28, 3, 31, 3))
sketch2.addConstraint(Sketcher.Constraint("Vertical", 29, 3, 32, 3))
sketch2.addConstraint(Sketcher.Constraint("Vertical", 30, 3, 33, 3))
sketch2.addConstraint(Sketcher.Constraint("Vertical", 31, 3, 34, 3))
sketch2.addConstraint(Sketcher.Constraint("Vertical", 32, 3, 35, 3))
sketch2.addConstraint(Sketcher.Constraint("Vertical", 33, 3, 36, 3))
sketch2.addConstraint(Sketcher.Constraint("Vertical", 34, 3, 37, 3))
sketch2.addConstraint(Sketcher.Constraint("Vertical", 35, 3, 38, 3))
sketch2.addConstraint(Sketcher.Constraint("Vertical", 37, 3, 39, 3))
sketch2.addConstraint(Sketcher.Constraint("Vertical", 36, 3, 40, 3))
sketch2.addConstraint(Sketcher.Constraint("Vertical", 38, 3, 41, 3))
sketch2.addConstraint(Sketcher.Constraint("Vertical", 39, 3, 42, 3))
sketch2.addConstraint(Sketcher.Constraint("Vertical", 40, 3, 43, 3))
sketch2.addConstraint(Sketcher.Constraint("Vertical", 41, 3, 44, 3))
sketch2.addConstraint(Sketcher.Constraint("Vertical", 42, 3, 45, 3))
sketch2.addConstraint(Sketcher.Constraint("Vertical", 44, 3, 46, 3))
sketch2.addConstraint(Sketcher.Constraint("Vertical", 43, 3, 47, 3))
sketch2.addConstraint(Sketcher.Constraint("Vertical", 45, 3, 48, 3))
sketch2.addConstraint(Sketcher.Constraint("Vertical", 46, 3, 49, 3))
sketch2.addConstraint(Sketcher.Constraint("Vertical", 47, 3, 50, 3))
sketch2.addConstraint(Sketcher.Constraint("Vertical", 49, 3, 51, 3))
sketch2.addConstraint(Sketcher.Constraint("Vertical", 48, 3, 52, 3))
sketch2.addConstraint(Sketcher.Constraint("Vertical", 50, 3, 53, 3))
sketch2.addConstraint(Sketcher.Constraint("Vertical", 5, 3, 54, 3))
sketch2.addConstraint(Sketcher.Constraint("Vertical", 4, 3, 55, 3))
sketch2.addConstraint(Sketcher.Constraint("Vertical", 3, 3, 56, 3))
sketch2.addConstraint(Sketcher.Constraint("Vertical", 0, 3, 57, 3))
sketch2.addConstraint(Sketcher.Constraint("Vertical", 1, 3, 58, 3))
sketch2.addConstraint(Sketcher.Constraint("Vertical", 2, 3, 59, 3))
sketch2.addConstraint(Sketcher.Constraint("DistanceX", 0, 3, 1, 3, Q("0.1 in")))
sketch2.addConstraint(Sketcher.Constraint("DistanceX", 1, 3, 2, 3, Q("0.1 in")))
sketch2.addConstraint(Sketcher.Constraint("DistanceX", 2, 3, 3, 3, Q("0.1 in")))
sketch2.addConstraint(Sketcher.Constraint("DistanceX", 3, 3, 4, 3, Q("0.1 in")))
sketch2.addConstraint(Sketcher.Constraint("DistanceX", 4, 3, 5, 3, Q("0.1 in")))
sketch2.addConstraint(Sketcher.Constraint("DistanceY", 7, 3, 6, 3, Q("0.1 in")))
sketch2.addConstraint(Sketcher.Constraint("DistanceY", 8, 3, 7, 3, Q("0.1 in")))
sketch2.addConstraint(Sketcher.Constraint("DistanceY", 9, 3, 8, 3, Q("0.1 in")))
sketch2.addConstraint(Sketcher.Constraint("DistanceY", 9, 3, 5, 3, Q("0.5 in")))
sketch2.addConstraint(Sketcher.Constraint("DistanceX", 6, 3, 10, 3, Q("0.1 in")))
sketch2.addConstraint(Sketcher.Constraint("DistanceX", 10, 3, 14, 3, Q("0.1 in")))
sketch2.addConstraint(Sketcher.Constraint("DistanceY", 20, 3, 19, 3, Q("0.1 in")))
sketch2.addConstraint(Sketcher.Constraint("DistanceY", 21, 3, 20, 3, Q("0.1 in")))
sketch2.addConstraint(Sketcher.Constraint("DistanceY", 24, 3, 21, 3, Q("0.1 in")))
sketch2.addConstraint(Sketcher.Constraint("DistanceY", 30, 3, 23, 3, Q("0.5 in")))
sketch2.addConstraint(Sketcher.Constraint("DistanceY", 33, 3, 30, 3, Q("0.1 in")))
sketch2.addConstraint(Sketcher.Constraint("DistanceY", 36, 3, 33, 3, Q("0.1 in")))
sketch2.addConstraint(Sketcher.Constraint("DistanceY", 31, 3, 39, 3, Q("0.1 in")))
sketch2.addConstraint(Sketcher.Constraint("DistanceY", 45, 3, 42, 3, Q("0.1 in")))
sketch2.addConstraint(Sketcher.Constraint("DistanceY", 48, 3, 45, 3, Q("0.1 in")))
sketch2.addConstraint(Sketcher.Constraint("DistanceY", 51, 3, 49, 3, Q("0.1 in")))
sketch2.addConstraint(Sketcher.Constraint("Diameter", 0, Q("1.02 mm")))
sketch2.addConstraint(Sketcher.Constraint("DistanceY", 0, 3, -1, 1, Q("0.08 in")))
sketch2.addConstraint(Sketcher.Constraint("DistanceX", 10, 3, -1, 1, Q("0.16 in")))
sketch2.addConstraint(Sketcher.Constraint("DistanceY", 18, 3, 13, 3, Q("0.2 in")))
sketch2.addConstraint(Sketcher.Constraint("DistanceY", 42, 3, 37, 3, Q("0.2 in")))
sketch2.addConstraint(Sketcher.Constraint("DistanceY", 54, 3, -1, 1, Q("2.37 in")))
sketch2.addConstraint(Sketcher.Constraint("DistanceX", 0, 3, -1, 1, Q("0.755 in")))
pocket1 = body.newObject("PartDesign::Pocket", "Pocket")
pocket1.Profile = sketch2
pocket1.Type = "ThroughAll"
pocket1.Reversed = True
doc.recompute()

fillet = body.newObject("PartDesign::Fillet", "Fillet")
fillet.Base = (pocket1, edges_at(pocket1, [
    (-25.654, 0.762, 0),
    (0, 0.762, 0),
    (0, 0.762, -62.23),
    (-25.654, 0.762, -62.23),
]))
fillet.setExpression("Radius", "Params.fillet_radius")

doc.recompute()
